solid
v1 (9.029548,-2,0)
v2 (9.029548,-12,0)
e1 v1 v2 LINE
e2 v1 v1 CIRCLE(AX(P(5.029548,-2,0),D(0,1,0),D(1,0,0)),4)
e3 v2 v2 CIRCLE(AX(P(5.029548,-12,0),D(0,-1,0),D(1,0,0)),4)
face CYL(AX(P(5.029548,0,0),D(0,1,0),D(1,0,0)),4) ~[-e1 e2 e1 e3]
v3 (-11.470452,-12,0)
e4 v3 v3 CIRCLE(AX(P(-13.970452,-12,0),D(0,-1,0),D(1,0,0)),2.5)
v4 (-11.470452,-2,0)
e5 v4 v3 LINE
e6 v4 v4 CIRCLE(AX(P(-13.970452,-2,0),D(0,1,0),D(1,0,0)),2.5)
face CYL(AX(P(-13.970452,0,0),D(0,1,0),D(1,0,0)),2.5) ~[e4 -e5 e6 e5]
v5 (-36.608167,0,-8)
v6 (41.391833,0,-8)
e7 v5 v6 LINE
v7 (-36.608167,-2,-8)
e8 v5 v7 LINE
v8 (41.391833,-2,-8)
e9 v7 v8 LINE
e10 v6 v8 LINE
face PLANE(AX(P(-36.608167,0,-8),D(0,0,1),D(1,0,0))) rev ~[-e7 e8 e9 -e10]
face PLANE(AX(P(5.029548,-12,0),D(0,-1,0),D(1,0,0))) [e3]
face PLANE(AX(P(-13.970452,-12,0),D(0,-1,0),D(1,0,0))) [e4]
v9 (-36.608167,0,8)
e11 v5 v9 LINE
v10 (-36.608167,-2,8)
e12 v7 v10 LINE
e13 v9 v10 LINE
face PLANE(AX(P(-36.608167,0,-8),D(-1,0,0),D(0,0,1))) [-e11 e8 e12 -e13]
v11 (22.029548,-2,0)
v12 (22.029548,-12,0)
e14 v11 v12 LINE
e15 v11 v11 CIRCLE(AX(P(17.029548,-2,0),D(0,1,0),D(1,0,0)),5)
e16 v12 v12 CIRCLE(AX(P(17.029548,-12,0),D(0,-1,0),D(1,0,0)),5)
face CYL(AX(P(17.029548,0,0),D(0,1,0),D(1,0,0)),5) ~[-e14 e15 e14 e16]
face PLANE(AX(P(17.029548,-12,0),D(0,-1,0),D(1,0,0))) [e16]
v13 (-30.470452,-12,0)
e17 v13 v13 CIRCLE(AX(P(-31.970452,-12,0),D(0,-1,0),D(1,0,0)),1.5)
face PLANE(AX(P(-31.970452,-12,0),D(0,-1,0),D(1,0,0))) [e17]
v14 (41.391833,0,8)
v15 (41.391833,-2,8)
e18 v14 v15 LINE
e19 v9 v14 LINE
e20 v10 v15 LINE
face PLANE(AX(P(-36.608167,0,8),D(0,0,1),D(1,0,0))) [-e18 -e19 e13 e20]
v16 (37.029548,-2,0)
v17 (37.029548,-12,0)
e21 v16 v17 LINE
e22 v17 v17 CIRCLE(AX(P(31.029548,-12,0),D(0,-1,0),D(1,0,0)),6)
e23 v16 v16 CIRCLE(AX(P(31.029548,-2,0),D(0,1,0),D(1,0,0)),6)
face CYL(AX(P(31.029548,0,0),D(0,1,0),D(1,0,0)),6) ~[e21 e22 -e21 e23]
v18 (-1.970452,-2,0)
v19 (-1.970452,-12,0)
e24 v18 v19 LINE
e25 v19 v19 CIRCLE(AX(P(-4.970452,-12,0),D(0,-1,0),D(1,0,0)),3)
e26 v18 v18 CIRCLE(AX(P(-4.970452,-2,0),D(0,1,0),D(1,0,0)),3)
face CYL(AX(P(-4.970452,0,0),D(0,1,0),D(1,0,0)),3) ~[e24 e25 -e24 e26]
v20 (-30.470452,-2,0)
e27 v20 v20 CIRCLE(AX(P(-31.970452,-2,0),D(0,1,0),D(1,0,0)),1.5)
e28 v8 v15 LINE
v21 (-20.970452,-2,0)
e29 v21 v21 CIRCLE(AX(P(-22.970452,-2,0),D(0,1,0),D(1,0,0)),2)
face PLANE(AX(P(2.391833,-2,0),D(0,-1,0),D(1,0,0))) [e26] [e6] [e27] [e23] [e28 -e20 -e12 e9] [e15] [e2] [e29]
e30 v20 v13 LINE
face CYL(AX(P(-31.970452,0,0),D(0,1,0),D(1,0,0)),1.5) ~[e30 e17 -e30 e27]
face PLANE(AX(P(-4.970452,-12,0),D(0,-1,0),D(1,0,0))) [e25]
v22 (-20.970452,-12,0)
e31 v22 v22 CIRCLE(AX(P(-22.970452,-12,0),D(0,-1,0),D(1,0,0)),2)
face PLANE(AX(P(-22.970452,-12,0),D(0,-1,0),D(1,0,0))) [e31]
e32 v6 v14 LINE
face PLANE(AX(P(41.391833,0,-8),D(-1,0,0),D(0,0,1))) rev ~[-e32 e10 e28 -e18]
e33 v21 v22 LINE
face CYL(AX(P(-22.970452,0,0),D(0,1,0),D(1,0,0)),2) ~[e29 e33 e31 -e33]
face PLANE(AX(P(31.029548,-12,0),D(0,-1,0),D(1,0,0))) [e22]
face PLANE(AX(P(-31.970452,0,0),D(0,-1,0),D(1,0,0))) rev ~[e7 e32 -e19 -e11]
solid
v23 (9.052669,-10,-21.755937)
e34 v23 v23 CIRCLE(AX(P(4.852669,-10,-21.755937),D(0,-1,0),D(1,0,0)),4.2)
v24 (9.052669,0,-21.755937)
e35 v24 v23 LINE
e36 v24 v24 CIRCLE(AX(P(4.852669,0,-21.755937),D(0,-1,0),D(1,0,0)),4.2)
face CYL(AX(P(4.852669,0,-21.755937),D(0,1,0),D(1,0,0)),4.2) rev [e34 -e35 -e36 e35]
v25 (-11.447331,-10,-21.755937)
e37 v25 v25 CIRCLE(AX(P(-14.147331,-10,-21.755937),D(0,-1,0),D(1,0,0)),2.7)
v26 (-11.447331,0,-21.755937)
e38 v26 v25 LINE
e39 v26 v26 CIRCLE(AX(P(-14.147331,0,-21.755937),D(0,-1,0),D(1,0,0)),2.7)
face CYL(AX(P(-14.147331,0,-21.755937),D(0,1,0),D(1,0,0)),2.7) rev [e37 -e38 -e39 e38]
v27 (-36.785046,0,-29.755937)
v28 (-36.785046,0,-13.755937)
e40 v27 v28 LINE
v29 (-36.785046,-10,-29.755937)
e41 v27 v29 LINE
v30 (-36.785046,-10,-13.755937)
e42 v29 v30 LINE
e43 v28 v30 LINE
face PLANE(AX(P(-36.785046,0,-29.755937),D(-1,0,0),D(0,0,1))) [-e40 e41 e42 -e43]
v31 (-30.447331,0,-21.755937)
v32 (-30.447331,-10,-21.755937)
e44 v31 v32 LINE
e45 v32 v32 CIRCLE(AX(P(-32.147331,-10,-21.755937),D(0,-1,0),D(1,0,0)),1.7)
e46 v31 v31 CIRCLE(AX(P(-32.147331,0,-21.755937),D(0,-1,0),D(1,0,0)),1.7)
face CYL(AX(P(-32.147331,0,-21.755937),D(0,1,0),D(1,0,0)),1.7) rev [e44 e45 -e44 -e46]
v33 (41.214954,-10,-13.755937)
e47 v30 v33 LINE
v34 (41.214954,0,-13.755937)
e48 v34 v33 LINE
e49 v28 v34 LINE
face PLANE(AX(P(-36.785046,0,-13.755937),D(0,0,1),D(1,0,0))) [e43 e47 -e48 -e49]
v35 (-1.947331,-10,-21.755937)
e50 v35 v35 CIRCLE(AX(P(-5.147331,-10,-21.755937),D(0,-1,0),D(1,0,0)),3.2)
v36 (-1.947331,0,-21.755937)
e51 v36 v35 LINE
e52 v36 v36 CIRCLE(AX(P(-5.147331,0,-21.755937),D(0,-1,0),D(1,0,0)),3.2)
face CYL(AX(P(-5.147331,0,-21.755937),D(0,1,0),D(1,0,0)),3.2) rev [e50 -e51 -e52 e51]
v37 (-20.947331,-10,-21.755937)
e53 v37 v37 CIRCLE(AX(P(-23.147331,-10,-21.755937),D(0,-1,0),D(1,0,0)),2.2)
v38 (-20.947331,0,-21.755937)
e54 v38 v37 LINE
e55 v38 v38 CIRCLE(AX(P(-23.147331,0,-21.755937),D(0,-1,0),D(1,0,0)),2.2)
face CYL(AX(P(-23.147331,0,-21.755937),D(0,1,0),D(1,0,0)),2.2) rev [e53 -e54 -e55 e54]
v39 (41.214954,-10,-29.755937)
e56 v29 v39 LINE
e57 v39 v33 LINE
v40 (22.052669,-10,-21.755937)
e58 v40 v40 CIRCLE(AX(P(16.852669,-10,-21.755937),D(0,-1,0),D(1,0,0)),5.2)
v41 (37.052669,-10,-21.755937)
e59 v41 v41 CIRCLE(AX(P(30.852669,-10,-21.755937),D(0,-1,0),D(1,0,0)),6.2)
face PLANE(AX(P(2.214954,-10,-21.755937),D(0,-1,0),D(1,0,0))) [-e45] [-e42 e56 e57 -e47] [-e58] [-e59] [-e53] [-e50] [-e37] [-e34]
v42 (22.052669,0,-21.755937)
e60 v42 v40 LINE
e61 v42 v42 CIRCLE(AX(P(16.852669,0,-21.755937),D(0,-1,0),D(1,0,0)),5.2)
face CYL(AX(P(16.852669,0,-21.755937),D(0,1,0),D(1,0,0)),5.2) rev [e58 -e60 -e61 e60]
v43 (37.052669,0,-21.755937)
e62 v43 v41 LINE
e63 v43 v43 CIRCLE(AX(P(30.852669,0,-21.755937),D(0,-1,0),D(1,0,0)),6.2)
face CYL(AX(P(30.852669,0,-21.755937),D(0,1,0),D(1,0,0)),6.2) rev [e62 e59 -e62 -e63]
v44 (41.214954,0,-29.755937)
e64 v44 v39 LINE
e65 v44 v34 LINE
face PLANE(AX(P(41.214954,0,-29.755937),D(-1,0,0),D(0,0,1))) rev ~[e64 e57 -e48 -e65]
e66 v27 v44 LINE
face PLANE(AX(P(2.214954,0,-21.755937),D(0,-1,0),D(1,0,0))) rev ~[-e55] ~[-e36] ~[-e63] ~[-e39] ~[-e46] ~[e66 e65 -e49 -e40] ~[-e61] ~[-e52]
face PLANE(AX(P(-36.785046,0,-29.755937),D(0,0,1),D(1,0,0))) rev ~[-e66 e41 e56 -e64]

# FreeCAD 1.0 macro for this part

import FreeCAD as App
import Part
import Sketcher
Q = App.Units.Quantity


def add_polygon(sketch, points):
    """Adds a closed chain of lines whose ends are joined by coincident constraints."""
    first, n = sketch.GeometryCount, len(points)
    for a, b in zip(points, points[1:] + points[:1]):
        sketch.addGeometry(Part.LineSegment(App.Vector(*a, 0), App.Vector(*b, 0)), False)
    for i in range(n):
        sketch.addConstraint(Sketcher.Constraint("Coincident", first + i, 2, first + (i + 1) % n, 1))

doc = App.newDocument("Part")
body = doc.addObject("PartDesign::Body", "Body")

# Sketch on XZ plane
sketch1 = body.newObject("Sketcher::SketchObject", "Sketch")
sketch1.AttachmentSupport = (doc.getObject("XZ_Plane"), [""])
sketch1.MapMode = "FlatFace"
add_polygon(sketch1, [(-37, 8), (-37, -8), (41, -8), (41, 8)])  # lines 0-3
sketch1.addConstraint([
    Sketcher.Constraint("Vertical", 0),
    Sketcher.Constraint("Horizontal", 1),
    Sketcher.Constraint("Vertical", 2),
    Sketcher.Constraint("Horizontal", 3),
    Sketcher.Constraint("DistanceX", 1, 1, 1, 2, Q("78 mm")),
    Sketcher.Constraint("DistanceY", 0, 2, 0, 1, Q("16 mm")),
    Sketcher.Constraint("DistanceY", 0, 2, -1, 1, Q("8 mm")),
    Sketcher.Constraint("DistanceX", 0, 2, -1, 1, Q("36.608167 mm")),
])
pad1 = body.newObject("PartDesign::Pad", "Pad")
pad1.Profile = sketch1
pad1.Length = 2

# Sketch on XZ plane
sketch2 = body.newObject("Sketcher::SketchObject", "Sketch001")
sketch2.AttachmentSupport = (doc.getObject("XZ_Plane"), [""])
sketch2.MapMode = "FlatFace"
sketch2.addGeometry([
    Part.Circle(App.Vector(-32, 0, 0), App.Vector(0, 0, 1), 1.5),  # 0
    Part.Circle(App.Vector(-23, 0, 0), App.Vector(0, 0, 1), 2),  # 1
    Part.Circle(App.Vector(-14, 0, 0), App.Vector(0, 0, 1), 2.5),  # 2
    Part.Circle(App.Vector(-5, 0, 0), App.Vector(0, 0, 1), 3),  # 3
    Part.Circle(App.Vector(5, 0, 0), App.Vector(0, 0, 1), 4),  # 4
    Part.Circle(App.Vector(17, 0, 0), App.Vector(0, 0, 1), 5),  # 5
    Part.Circle(App.Vector(31, 0, 0), App.Vector(0, 0, 1), 6),  # 6
], False)
sketch2.addConstraint([
    Sketcher.Constraint("PointOnObject", 0, 3, -1),
    Sketcher.Constraint("PointOnObject", 1, 3, -1),
    Sketcher.Constraint("PointOnObject", 2, 3, -1),
    Sketcher.Constraint("PointOnObject", 3, 3, -1),
    Sketcher.Constraint("PointOnObject", 4, 3, -1),
    Sketcher.Constraint("PointOnObject", 5, 3, -1),
    Sketcher.Constraint("PointOnObject", 6, 3, -1),
    Sketcher.Constraint("Diameter", 0, Q("3 mm")),
    Sketcher.Constraint("Diameter", 1, Q("4 mm")),
    Sketcher.Constraint("Diameter", 2, Q("5 mm")),
    Sketcher.Constraint("Diameter", 3, Q("6 mm")),
    Sketcher.Constraint("Diameter", 4, Q("8 mm")),
    Sketcher.Constraint("Diameter", 5, Q("10 mm")),
    Sketcher.Constraint("Diameter", 6, Q("12 mm")),
    Sketcher.Constraint("DistanceX", 0, 3, 1, 3, Q("9 mm")),
    Sketcher.Constraint("DistanceX", 1, 3, 2, 3, Q("9 mm")),
    Sketcher.Constraint("DistanceX", 2, 3, 3, 3, Q("9 mm")),
    Sketcher.Constraint("DistanceX", 3, 3, 4, 3, Q("10 mm")),
    Sketcher.Constraint("DistanceX", 4, 3, 5, 3, Q("12 mm")),
    Sketcher.Constraint("DistanceX", 5, 3, 6, 3, Q("14 mm")),
    Sketcher.Constraint("DistanceX", 0, 3, -1, 1, Q("31.970452 mm")),
])
pad2 = body.newObject("PartDesign::Pad", "Pad001")
pad2.Profile = sketch2
pad2.Length = 12
body2 = doc.addObject("PartDesign::Body", "Body001")

# Sketch on XZ plane
sketch3 = body2.newObject("Sketcher::SketchObject", "Sketch002")
sketch3.AttachmentSupport = (doc.getObject("XZ_Plane001"), [""])
sketch3.MapMode = "FlatFace"
add_polygon(sketch3, [(-36.8, -13.8), (-36.8, -29.8), (41.2, -29.8), (41.2, -13.8)])  # lines 0-3
sketch3.addGeometry(Part.Circle(App.Vector(-32.1, -21.8, 0), App.Vector(0, 0, 1), 1.7), False)  # 4
sketch3.addGeometry(Part.Circle(App.Vector(-23.1, -21.8, 0), App.Vector(0, 0, 1), 2.2), False)  # 5
sketch3.addGeometry(Part.Circle(App.Vector(-14.1, -21.8, 0), App.Vector(0, 0, 1), 2.7), False)  # 6
sketch3.addGeometry(Part.Circle(App.Vector(-5.1, -21.8, 0), App.Vector(0, 0, 1), 3.2), False)  # 7
sketch3.addGeometry(Part.Circle(App.Vector(4.9, -21.8, 0), App.Vector(0, 0, 1), 4.2), False)  # 8
sketch3.addGeometry(Part.Circle(App.Vector(16.9, -21.8, 0), App.Vector(0, 0, 1), 5.2), False)  # 9
sketch3.addGeometry(Part.Circle(App.Vector(30.9, -21.8, 0), App.Vector(0, 0, 1), 6.2), False)  # 10
sketch3.addConstraint([
    Sketcher.Constraint("Vertical", 0),
    Sketcher.Constraint("Horizontal", 1),
    Sketcher.Constraint("Vertical", 2),
    Sketcher.Constraint("Horizontal", 3),
    Sketcher.Constraint("Horizontal", 4, 3, 5, 3),
    Sketcher.Constraint("Horizontal", 5, 3, 6, 3),
    Sketcher.Constraint("Horizontal", 6, 3, 7, 3),
    Sketcher.Constraint("Horizontal", 7, 3, 8, 3),
    Sketcher.Constraint("Horizontal", 8, 3, 9, 3),
    Sketcher.Constraint("Horizontal", 9, 3, 10, 3),
    Sketcher.Constraint("Diameter", 4, Q("3.4 mm")),
    Sketcher.Constraint("Diameter", 5, Q("4.4 mm")),
    Sketcher.Constraint("Diameter", 6, Q("5.4 mm")),
    Sketcher.Constraint("Diameter", 7, Q("6.4 mm")),
    Sketcher.Constraint("Diameter", 8, Q("8.4 mm")),
    Sketcher.Constraint("Diameter", 9, Q("10.4 mm")),
    Sketcher.Constraint("Diameter", 10, Q("12.4 mm")),
    Sketcher.Constraint("DistanceX", 1, 1, 1, 2, Q("78 mm")),
    Sketcher.Constraint("DistanceY", 0, 2, 0, 1, Q("16 mm")),
    Sketcher.Constraint("DistanceX", 4, 3, 5, 3, Q("9 mm")),
    Sketcher.Constraint("DistanceX", 5, 3, 6, 3, Q("9 mm")),
    Sketcher.Constraint("DistanceX", 6, 3, 7, 3, Q("9 mm")),
    Sketcher.Constraint("DistanceX", 7, 3, 8, 3, Q("10 mm")),
    Sketcher.Constraint("DistanceX", 8, 3, 9, 3, Q("12 mm")),
    Sketcher.Constraint("DistanceX", 9, 3, 10, 3, Q("14 mm")),
    Sketcher.Constraint("DistanceY", 0, 2, 4, 3, Q("8 mm")),
    Sketcher.Constraint("DistanceX", 4, 3, -1, 1, Q("32.147331 mm")),
    Sketcher.Constraint("DistanceY", 4, 3, -1, 1, Q("21.755937 mm")),
    Sketcher.Constraint("DistanceX", 0, 2, -1, 1, Q("36.785046 mm")),
])
pad3 = body2.newObject("PartDesign::Pad", "Pad002")
pad3.Profile = sketch3
pad3.Length = 10

doc.recompute()
